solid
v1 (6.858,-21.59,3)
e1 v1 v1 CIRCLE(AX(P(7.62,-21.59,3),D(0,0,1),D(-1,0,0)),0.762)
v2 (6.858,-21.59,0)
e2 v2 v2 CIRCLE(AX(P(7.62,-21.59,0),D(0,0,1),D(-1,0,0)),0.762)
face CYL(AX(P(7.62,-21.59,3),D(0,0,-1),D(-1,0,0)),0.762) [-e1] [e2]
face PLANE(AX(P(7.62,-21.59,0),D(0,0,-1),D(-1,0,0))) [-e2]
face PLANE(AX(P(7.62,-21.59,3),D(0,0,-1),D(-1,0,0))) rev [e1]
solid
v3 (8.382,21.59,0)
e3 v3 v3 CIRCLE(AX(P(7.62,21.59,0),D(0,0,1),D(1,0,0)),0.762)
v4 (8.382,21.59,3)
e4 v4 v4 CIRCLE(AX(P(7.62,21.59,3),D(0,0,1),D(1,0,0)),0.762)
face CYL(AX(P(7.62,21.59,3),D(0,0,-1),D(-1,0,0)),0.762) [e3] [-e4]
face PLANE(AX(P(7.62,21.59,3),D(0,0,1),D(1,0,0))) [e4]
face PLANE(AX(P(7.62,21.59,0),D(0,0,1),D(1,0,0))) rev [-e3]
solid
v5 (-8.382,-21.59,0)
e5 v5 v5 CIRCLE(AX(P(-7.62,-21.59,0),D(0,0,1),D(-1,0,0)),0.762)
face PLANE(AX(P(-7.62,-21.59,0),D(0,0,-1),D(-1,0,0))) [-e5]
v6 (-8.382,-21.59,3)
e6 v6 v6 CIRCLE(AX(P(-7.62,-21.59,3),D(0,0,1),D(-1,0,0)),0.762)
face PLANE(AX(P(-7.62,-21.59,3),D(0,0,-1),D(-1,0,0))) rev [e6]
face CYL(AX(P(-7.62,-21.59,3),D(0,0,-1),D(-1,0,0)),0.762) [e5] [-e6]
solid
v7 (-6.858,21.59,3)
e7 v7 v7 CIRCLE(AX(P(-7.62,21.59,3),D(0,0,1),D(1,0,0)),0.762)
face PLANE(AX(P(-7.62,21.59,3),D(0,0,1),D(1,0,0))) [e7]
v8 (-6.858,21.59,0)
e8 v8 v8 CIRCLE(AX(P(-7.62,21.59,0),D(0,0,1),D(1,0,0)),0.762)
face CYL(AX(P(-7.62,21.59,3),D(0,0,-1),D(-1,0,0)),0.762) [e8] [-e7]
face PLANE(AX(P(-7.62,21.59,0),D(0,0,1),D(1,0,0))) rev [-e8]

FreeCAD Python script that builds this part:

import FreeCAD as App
import Part
import Sketcher

V = App.Vector

doc = App.newDocument("Part")
params = doc.addObject("Spreadsheet::Sheet", "Params")
for row, (alias, value) in enumerate([
    ("pad1_length", "3 mm"),
    ("pad2_length", "3 mm"),
    ("pad3_length", "3 mm"),
    ("pad4_length", "3 mm"),
], start=1):
    params.set(f"A{row}", alias)
    params.set(f"B{row}", "=" + value)
    params.setAlias(f"B{row}", alias)

body = doc.addObject("PartDesign::Body", "Body")

sketch1 = doc.addObject("Sketcher::SketchObject", "Sketch")
body.addObject(sketch1)
sketch1.AttachmentSupport = (doc.XY_Plane, [""])
sketch1.MapMode = "FlatFace"
sketch1.addGeometry(Part.Circle(V(-7.6, 21.6, 0), V(0, 0, 1), 0.8), False)
sketch1.addConstraint([
    Sketcher.Constraint("Diameter", 0, 1.524),
    Sketcher.Constraint("DistanceX", 0, 3, -1, 1, 7.62),
    Sketcher.Constraint("DistanceY", -1, 1, 0, 3, 21.59),
])
pad1 = doc.addObject("PartDesign::Pad", "Pad")
body.addObject(pad1)
pad1.Profile = sketch1
pad1.setExpression("Length", "Params.pad1_length")
body2 = doc.addObject("PartDesign::Body", "Body001")

sketch2 = doc.addObject("Sketcher::SketchObject", "Sketch001")
body2.addObject(sketch2)
sketch2.AttachmentSupport = (doc.getObject("XY_Plane001"), [""])
sketch2.MapMode = "FlatFace"
sketch2.addGeometry(Part.Circle(V(7.6, 21.6, 0), V(0, 0, 1), 0.8), False)
sketch2.addConstraint([
    Sketcher.Constraint("Diameter", 0, 1.524),
    Sketcher.Constraint("DistanceX", -1, 1, 0, 3, 7.62),
    Sketcher.Constraint("DistanceY", -1, 1, 0, 3, 21.59),
])
pad2 = doc.addObject("PartDesign::Pad", "Pad001")
body2.addObject(pad2)
pad2.Profile = sketch2
pad2.setExpression("Length", "Params.pad2_length")
body3 = doc.addObject("PartDesign::Body", "Body002")

sketch3 = doc.addObject("Sketcher::SketchObject", "Sketch002")
body3.addObject(sketch3)
sketch3.AttachmentSupport = (doc.getObject("XY_Plane002"), [""])
sketch3.MapMode = "FlatFace"
sketch3.addGeometry(Part.Circle(V(7.6, -21.6, 0), V(0, 0, 1), 0.8), False)
sketch3.addConstraint([
    Sketcher.Constraint("Diameter", 0, 1.524),
    Sketcher.Constraint("DistanceX", -1, 1, 0, 3, 7.62),
    Sketcher.Constraint("DistanceY", 0, 3, -1, 1, 21.59),
])
pad3 = doc.addObject("PartDesign::Pad", "Pad002")
body3.addObject(pad3)
pad3.Profile = sketch3
pad3.setExpression("Length", "Params.pad3_length")
body4 = doc.addObject("PartDesign::Body", "Body003")

sketch4 = doc.addObject("Sketcher::SketchObject", "Sketch003")
body4.addObject(sketch4)
sketch4.AttachmentSupport = (doc.getObject("XY_Plane003"), [""])
sketch4.MapMode = "FlatFace"
sketch4.addGeometry(Part.Circle(V(-7.6, -21.6, 0), V(0, 0, 1), 0.8), False)
sketch4.addConstraint([
    Sketcher.Constraint("Diameter", 0, 1.524),
    Sketcher.Constraint("DistanceX", 0, 3, -1, 1, 7.62),
    Sketcher.Constraint("DistanceY", 0, 3, -1, 1, 21.59),
])
pad4 = doc.addObject("PartDesign::Pad", "Pad003")
body4.addObject(pad4)
pad4.Profile = sketch4
pad4.setExpression("Length", "Params.pad4_length")

doc.recompute()
